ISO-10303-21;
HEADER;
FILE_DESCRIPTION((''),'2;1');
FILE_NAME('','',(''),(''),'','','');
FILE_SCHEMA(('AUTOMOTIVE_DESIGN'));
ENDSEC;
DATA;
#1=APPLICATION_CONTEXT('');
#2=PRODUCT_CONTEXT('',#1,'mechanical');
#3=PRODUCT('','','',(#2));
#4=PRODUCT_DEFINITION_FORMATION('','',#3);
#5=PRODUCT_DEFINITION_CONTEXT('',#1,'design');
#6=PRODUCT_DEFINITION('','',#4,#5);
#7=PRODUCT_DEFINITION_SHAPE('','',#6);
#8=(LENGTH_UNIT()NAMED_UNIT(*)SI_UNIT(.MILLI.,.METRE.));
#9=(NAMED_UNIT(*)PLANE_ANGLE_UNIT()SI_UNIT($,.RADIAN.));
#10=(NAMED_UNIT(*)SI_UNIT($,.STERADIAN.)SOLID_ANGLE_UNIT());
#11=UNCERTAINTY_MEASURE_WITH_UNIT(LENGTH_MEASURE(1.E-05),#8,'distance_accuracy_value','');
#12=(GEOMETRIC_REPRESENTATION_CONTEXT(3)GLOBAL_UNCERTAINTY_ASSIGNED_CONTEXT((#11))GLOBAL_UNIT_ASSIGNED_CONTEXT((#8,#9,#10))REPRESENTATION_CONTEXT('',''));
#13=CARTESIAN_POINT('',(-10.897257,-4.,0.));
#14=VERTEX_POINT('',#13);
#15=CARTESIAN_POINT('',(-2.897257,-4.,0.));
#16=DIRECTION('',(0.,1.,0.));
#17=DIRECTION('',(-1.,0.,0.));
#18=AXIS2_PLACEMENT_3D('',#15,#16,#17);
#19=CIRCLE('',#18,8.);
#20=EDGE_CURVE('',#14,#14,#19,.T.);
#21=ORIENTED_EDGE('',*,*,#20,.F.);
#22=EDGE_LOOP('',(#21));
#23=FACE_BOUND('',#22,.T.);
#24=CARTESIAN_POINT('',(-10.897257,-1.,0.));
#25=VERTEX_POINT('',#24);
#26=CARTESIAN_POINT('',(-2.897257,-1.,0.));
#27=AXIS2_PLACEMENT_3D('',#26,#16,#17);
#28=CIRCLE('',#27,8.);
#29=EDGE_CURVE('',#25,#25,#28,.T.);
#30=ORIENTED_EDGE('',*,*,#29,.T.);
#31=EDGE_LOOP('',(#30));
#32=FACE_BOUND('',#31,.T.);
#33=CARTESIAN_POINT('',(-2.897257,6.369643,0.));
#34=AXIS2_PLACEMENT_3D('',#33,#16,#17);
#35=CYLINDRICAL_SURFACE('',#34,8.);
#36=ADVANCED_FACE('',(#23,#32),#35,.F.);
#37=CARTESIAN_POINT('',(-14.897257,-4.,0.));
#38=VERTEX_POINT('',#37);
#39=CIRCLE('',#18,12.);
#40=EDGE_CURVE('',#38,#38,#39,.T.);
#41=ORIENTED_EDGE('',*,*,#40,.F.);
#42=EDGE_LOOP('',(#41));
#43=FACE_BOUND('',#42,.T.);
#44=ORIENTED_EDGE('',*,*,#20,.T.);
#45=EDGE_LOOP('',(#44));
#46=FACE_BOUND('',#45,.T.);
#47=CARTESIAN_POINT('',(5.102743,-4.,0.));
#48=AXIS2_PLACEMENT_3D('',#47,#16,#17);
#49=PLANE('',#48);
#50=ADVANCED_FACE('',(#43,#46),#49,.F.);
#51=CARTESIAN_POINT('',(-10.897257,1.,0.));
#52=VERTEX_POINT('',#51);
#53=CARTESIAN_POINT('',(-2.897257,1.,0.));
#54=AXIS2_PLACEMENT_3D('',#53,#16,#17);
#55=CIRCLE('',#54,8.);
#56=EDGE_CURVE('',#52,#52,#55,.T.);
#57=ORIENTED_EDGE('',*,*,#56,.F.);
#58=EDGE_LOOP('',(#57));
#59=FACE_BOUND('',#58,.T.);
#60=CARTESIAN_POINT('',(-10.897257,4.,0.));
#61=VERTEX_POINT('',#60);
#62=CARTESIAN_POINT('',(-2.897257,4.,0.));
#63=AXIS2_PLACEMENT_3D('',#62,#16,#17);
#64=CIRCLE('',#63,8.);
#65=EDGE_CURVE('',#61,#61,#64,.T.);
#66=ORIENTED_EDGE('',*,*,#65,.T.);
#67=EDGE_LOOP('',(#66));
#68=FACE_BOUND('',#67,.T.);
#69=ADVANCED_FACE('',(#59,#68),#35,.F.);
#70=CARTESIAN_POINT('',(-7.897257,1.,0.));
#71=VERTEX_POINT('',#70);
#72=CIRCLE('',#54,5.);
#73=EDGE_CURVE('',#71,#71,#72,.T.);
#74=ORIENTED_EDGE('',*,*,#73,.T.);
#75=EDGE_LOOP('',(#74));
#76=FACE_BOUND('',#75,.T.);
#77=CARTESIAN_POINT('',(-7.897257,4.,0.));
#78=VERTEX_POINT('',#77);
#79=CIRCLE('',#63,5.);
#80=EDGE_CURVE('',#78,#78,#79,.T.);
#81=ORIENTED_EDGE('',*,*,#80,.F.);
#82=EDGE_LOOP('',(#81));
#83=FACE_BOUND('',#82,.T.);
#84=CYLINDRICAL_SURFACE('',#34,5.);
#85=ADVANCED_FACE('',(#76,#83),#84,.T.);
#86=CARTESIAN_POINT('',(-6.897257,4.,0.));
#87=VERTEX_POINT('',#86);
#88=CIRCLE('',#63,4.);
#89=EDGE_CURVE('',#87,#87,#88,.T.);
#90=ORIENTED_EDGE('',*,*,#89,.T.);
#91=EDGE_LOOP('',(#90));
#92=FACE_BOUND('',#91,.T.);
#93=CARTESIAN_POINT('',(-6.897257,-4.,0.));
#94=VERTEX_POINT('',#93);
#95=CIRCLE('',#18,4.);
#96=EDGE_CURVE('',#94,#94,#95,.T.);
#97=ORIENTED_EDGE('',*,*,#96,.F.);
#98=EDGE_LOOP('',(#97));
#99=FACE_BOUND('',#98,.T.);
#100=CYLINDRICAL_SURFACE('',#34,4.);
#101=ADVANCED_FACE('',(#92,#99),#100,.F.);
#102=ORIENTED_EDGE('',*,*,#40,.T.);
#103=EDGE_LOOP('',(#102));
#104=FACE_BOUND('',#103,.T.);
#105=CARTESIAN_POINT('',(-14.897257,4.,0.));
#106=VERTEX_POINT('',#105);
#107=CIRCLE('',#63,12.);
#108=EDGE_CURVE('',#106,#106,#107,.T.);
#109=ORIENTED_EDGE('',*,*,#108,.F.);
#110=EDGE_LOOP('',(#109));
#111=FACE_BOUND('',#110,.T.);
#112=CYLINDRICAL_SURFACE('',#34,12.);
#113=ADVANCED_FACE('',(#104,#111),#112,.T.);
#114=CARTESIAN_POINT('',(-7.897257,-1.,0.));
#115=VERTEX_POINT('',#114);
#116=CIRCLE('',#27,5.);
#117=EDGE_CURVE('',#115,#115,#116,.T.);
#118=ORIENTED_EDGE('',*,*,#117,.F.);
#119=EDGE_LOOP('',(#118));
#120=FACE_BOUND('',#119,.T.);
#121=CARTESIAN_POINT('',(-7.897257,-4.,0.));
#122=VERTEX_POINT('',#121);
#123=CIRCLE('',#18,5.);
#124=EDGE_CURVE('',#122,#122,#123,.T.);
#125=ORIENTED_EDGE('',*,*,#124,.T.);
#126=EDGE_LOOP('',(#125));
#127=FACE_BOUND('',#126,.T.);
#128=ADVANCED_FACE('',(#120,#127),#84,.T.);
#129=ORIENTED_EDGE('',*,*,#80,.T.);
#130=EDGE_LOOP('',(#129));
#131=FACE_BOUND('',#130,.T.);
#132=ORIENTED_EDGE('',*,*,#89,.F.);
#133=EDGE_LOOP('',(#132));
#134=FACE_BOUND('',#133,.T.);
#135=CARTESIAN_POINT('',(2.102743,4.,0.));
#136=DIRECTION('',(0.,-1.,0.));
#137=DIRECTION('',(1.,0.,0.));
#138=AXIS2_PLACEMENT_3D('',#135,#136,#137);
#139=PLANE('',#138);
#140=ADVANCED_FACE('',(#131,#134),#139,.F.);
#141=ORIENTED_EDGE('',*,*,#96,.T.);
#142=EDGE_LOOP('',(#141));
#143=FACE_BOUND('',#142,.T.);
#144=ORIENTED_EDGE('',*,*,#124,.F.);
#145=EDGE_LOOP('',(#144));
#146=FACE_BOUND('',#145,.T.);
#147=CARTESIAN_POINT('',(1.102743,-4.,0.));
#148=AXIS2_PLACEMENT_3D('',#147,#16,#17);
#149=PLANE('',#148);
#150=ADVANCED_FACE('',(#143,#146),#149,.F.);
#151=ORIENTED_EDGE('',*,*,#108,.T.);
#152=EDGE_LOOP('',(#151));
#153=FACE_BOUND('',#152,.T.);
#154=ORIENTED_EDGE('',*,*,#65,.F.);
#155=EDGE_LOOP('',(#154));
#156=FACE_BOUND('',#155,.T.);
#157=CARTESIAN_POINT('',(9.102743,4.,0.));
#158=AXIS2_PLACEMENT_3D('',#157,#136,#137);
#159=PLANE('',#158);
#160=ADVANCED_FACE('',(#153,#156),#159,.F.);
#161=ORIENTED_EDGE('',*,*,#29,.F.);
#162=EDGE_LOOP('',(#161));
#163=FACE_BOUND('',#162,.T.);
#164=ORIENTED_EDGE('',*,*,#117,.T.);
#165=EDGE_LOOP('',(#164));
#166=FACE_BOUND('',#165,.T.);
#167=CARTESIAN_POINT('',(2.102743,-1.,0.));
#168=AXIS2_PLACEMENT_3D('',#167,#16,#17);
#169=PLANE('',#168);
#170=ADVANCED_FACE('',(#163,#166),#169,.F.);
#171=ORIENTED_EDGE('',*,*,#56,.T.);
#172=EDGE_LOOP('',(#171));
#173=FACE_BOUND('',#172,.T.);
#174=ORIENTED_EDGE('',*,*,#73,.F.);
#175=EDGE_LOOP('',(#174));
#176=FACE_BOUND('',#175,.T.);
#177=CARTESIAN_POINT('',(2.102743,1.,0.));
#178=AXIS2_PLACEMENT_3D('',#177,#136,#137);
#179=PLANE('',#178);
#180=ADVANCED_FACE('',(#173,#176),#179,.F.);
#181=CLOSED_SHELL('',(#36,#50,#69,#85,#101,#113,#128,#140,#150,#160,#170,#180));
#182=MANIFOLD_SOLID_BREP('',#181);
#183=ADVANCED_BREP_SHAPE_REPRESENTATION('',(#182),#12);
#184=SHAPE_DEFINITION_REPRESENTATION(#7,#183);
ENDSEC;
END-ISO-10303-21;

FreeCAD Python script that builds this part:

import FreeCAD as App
import Part
import Sketcher

V = App.Vector


def add_polygon(sketch, points):
    """Adds a closed chain of lines whose ends are joined by coincident constraints."""
    first, n = sketch.GeometryCount, len(points)
    for a, b in zip(points, points[1:] + points[:1]):
        sketch.addGeometry(Part.LineSegment(App.Vector(*a, 0), App.Vector(*b, 0)), False)
    for i in range(n):
        sketch.addConstraint(Sketcher.Constraint("Coincident", first + i, 2, first + (i + 1) % n, 1))

doc = App.newDocument("Part")
body = doc.addObject("PartDesign::Body", "Body")

# Sketch on XY plane
sketch1 = doc.addObject("Sketcher::SketchObject", "Sketch")
body.addObject(sketch1)
sketch1.AttachmentSupport = (doc.XY_Plane, [""])
sketch1.MapMode = "FlatFace"
add_polygon(sketch1, [(1.1, -4), (2.1, -4), (2.1, -1), (5.1, -1), (5.1, -4), (9.1, -4), (9.1, 4), (5.1, 4), (5.1, 1), (2.1, 1), (2.1, 4), (1.1, 4)])  # lines 0-11
sketch1.addGeometry(Part.LineSegment(V(-2.9, 4, 0), V(-2.9, -4, 0)), True)  # axis
sketch1.addConstraint([
    Sketcher.Constraint("Horizontal", 0),
    Sketcher.Constraint("Vertical", 1),
    Sketcher.Constraint("Horizontal", 2),
    Sketcher.Constraint("Vertical", 3),
    Sketcher.Constraint("Horizontal", 4),
    Sketcher.Constraint("Vertical", 5),
    Sketcher.Constraint("Horizontal", 6),
    Sketcher.Constraint("Vertical", 7),
    Sketcher.Constraint("Horizontal", 8),
    Sketcher.Constraint("Vertical", 9),
    Sketcher.Constraint("Horizontal", 10),
    Sketcher.Constraint("Vertical", 11),
    Sketcher.Constraint("Vertical", 12),
    Sketcher.Constraint("Symmetric", 3, 2, 6, 2, -1),
    Sketcher.Constraint("Symmetric", 1, 2, 8, 2, -1),
    Sketcher.Constraint("Horizontal", 0, 2, 3, 2),
    Sketcher.Constraint("Horizontal", 6, 2, 9, 2),
    Sketcher.Constraint("Horizontal", 10, 2, 12, 1),
    Sketcher.Constraint("Horizontal", 11, 2, 12, 2),
    Sketcher.Constraint("Equal", 8, 1),
    Sketcher.Constraint("DistanceX", 0, 1, 0, 2, 1.0),
    Sketcher.Constraint("DistanceX", 2, 1, 2, 2, 3.0),
    Sketcher.Constraint("DistanceX", 4, 1, 4, 2, 4.0),
    Sketcher.Constraint("DistanceY", 5, 1, 5, 2, 8.0),
    Sketcher.Constraint("DistanceX", 12, 1, 10, 2, 4.0),
    Sketcher.Constraint("DistanceX", -1, 1, 0, 2, 2.102743),
])
revolution = doc.addObject("PartDesign::Revolution", "Revolution")
body.addObject(revolution)
revolution.Profile = sketch1
revolution.ReferenceAxis = (sketch1, ["Axis0"])
revolution.Angle = 360

doc.recompute()
